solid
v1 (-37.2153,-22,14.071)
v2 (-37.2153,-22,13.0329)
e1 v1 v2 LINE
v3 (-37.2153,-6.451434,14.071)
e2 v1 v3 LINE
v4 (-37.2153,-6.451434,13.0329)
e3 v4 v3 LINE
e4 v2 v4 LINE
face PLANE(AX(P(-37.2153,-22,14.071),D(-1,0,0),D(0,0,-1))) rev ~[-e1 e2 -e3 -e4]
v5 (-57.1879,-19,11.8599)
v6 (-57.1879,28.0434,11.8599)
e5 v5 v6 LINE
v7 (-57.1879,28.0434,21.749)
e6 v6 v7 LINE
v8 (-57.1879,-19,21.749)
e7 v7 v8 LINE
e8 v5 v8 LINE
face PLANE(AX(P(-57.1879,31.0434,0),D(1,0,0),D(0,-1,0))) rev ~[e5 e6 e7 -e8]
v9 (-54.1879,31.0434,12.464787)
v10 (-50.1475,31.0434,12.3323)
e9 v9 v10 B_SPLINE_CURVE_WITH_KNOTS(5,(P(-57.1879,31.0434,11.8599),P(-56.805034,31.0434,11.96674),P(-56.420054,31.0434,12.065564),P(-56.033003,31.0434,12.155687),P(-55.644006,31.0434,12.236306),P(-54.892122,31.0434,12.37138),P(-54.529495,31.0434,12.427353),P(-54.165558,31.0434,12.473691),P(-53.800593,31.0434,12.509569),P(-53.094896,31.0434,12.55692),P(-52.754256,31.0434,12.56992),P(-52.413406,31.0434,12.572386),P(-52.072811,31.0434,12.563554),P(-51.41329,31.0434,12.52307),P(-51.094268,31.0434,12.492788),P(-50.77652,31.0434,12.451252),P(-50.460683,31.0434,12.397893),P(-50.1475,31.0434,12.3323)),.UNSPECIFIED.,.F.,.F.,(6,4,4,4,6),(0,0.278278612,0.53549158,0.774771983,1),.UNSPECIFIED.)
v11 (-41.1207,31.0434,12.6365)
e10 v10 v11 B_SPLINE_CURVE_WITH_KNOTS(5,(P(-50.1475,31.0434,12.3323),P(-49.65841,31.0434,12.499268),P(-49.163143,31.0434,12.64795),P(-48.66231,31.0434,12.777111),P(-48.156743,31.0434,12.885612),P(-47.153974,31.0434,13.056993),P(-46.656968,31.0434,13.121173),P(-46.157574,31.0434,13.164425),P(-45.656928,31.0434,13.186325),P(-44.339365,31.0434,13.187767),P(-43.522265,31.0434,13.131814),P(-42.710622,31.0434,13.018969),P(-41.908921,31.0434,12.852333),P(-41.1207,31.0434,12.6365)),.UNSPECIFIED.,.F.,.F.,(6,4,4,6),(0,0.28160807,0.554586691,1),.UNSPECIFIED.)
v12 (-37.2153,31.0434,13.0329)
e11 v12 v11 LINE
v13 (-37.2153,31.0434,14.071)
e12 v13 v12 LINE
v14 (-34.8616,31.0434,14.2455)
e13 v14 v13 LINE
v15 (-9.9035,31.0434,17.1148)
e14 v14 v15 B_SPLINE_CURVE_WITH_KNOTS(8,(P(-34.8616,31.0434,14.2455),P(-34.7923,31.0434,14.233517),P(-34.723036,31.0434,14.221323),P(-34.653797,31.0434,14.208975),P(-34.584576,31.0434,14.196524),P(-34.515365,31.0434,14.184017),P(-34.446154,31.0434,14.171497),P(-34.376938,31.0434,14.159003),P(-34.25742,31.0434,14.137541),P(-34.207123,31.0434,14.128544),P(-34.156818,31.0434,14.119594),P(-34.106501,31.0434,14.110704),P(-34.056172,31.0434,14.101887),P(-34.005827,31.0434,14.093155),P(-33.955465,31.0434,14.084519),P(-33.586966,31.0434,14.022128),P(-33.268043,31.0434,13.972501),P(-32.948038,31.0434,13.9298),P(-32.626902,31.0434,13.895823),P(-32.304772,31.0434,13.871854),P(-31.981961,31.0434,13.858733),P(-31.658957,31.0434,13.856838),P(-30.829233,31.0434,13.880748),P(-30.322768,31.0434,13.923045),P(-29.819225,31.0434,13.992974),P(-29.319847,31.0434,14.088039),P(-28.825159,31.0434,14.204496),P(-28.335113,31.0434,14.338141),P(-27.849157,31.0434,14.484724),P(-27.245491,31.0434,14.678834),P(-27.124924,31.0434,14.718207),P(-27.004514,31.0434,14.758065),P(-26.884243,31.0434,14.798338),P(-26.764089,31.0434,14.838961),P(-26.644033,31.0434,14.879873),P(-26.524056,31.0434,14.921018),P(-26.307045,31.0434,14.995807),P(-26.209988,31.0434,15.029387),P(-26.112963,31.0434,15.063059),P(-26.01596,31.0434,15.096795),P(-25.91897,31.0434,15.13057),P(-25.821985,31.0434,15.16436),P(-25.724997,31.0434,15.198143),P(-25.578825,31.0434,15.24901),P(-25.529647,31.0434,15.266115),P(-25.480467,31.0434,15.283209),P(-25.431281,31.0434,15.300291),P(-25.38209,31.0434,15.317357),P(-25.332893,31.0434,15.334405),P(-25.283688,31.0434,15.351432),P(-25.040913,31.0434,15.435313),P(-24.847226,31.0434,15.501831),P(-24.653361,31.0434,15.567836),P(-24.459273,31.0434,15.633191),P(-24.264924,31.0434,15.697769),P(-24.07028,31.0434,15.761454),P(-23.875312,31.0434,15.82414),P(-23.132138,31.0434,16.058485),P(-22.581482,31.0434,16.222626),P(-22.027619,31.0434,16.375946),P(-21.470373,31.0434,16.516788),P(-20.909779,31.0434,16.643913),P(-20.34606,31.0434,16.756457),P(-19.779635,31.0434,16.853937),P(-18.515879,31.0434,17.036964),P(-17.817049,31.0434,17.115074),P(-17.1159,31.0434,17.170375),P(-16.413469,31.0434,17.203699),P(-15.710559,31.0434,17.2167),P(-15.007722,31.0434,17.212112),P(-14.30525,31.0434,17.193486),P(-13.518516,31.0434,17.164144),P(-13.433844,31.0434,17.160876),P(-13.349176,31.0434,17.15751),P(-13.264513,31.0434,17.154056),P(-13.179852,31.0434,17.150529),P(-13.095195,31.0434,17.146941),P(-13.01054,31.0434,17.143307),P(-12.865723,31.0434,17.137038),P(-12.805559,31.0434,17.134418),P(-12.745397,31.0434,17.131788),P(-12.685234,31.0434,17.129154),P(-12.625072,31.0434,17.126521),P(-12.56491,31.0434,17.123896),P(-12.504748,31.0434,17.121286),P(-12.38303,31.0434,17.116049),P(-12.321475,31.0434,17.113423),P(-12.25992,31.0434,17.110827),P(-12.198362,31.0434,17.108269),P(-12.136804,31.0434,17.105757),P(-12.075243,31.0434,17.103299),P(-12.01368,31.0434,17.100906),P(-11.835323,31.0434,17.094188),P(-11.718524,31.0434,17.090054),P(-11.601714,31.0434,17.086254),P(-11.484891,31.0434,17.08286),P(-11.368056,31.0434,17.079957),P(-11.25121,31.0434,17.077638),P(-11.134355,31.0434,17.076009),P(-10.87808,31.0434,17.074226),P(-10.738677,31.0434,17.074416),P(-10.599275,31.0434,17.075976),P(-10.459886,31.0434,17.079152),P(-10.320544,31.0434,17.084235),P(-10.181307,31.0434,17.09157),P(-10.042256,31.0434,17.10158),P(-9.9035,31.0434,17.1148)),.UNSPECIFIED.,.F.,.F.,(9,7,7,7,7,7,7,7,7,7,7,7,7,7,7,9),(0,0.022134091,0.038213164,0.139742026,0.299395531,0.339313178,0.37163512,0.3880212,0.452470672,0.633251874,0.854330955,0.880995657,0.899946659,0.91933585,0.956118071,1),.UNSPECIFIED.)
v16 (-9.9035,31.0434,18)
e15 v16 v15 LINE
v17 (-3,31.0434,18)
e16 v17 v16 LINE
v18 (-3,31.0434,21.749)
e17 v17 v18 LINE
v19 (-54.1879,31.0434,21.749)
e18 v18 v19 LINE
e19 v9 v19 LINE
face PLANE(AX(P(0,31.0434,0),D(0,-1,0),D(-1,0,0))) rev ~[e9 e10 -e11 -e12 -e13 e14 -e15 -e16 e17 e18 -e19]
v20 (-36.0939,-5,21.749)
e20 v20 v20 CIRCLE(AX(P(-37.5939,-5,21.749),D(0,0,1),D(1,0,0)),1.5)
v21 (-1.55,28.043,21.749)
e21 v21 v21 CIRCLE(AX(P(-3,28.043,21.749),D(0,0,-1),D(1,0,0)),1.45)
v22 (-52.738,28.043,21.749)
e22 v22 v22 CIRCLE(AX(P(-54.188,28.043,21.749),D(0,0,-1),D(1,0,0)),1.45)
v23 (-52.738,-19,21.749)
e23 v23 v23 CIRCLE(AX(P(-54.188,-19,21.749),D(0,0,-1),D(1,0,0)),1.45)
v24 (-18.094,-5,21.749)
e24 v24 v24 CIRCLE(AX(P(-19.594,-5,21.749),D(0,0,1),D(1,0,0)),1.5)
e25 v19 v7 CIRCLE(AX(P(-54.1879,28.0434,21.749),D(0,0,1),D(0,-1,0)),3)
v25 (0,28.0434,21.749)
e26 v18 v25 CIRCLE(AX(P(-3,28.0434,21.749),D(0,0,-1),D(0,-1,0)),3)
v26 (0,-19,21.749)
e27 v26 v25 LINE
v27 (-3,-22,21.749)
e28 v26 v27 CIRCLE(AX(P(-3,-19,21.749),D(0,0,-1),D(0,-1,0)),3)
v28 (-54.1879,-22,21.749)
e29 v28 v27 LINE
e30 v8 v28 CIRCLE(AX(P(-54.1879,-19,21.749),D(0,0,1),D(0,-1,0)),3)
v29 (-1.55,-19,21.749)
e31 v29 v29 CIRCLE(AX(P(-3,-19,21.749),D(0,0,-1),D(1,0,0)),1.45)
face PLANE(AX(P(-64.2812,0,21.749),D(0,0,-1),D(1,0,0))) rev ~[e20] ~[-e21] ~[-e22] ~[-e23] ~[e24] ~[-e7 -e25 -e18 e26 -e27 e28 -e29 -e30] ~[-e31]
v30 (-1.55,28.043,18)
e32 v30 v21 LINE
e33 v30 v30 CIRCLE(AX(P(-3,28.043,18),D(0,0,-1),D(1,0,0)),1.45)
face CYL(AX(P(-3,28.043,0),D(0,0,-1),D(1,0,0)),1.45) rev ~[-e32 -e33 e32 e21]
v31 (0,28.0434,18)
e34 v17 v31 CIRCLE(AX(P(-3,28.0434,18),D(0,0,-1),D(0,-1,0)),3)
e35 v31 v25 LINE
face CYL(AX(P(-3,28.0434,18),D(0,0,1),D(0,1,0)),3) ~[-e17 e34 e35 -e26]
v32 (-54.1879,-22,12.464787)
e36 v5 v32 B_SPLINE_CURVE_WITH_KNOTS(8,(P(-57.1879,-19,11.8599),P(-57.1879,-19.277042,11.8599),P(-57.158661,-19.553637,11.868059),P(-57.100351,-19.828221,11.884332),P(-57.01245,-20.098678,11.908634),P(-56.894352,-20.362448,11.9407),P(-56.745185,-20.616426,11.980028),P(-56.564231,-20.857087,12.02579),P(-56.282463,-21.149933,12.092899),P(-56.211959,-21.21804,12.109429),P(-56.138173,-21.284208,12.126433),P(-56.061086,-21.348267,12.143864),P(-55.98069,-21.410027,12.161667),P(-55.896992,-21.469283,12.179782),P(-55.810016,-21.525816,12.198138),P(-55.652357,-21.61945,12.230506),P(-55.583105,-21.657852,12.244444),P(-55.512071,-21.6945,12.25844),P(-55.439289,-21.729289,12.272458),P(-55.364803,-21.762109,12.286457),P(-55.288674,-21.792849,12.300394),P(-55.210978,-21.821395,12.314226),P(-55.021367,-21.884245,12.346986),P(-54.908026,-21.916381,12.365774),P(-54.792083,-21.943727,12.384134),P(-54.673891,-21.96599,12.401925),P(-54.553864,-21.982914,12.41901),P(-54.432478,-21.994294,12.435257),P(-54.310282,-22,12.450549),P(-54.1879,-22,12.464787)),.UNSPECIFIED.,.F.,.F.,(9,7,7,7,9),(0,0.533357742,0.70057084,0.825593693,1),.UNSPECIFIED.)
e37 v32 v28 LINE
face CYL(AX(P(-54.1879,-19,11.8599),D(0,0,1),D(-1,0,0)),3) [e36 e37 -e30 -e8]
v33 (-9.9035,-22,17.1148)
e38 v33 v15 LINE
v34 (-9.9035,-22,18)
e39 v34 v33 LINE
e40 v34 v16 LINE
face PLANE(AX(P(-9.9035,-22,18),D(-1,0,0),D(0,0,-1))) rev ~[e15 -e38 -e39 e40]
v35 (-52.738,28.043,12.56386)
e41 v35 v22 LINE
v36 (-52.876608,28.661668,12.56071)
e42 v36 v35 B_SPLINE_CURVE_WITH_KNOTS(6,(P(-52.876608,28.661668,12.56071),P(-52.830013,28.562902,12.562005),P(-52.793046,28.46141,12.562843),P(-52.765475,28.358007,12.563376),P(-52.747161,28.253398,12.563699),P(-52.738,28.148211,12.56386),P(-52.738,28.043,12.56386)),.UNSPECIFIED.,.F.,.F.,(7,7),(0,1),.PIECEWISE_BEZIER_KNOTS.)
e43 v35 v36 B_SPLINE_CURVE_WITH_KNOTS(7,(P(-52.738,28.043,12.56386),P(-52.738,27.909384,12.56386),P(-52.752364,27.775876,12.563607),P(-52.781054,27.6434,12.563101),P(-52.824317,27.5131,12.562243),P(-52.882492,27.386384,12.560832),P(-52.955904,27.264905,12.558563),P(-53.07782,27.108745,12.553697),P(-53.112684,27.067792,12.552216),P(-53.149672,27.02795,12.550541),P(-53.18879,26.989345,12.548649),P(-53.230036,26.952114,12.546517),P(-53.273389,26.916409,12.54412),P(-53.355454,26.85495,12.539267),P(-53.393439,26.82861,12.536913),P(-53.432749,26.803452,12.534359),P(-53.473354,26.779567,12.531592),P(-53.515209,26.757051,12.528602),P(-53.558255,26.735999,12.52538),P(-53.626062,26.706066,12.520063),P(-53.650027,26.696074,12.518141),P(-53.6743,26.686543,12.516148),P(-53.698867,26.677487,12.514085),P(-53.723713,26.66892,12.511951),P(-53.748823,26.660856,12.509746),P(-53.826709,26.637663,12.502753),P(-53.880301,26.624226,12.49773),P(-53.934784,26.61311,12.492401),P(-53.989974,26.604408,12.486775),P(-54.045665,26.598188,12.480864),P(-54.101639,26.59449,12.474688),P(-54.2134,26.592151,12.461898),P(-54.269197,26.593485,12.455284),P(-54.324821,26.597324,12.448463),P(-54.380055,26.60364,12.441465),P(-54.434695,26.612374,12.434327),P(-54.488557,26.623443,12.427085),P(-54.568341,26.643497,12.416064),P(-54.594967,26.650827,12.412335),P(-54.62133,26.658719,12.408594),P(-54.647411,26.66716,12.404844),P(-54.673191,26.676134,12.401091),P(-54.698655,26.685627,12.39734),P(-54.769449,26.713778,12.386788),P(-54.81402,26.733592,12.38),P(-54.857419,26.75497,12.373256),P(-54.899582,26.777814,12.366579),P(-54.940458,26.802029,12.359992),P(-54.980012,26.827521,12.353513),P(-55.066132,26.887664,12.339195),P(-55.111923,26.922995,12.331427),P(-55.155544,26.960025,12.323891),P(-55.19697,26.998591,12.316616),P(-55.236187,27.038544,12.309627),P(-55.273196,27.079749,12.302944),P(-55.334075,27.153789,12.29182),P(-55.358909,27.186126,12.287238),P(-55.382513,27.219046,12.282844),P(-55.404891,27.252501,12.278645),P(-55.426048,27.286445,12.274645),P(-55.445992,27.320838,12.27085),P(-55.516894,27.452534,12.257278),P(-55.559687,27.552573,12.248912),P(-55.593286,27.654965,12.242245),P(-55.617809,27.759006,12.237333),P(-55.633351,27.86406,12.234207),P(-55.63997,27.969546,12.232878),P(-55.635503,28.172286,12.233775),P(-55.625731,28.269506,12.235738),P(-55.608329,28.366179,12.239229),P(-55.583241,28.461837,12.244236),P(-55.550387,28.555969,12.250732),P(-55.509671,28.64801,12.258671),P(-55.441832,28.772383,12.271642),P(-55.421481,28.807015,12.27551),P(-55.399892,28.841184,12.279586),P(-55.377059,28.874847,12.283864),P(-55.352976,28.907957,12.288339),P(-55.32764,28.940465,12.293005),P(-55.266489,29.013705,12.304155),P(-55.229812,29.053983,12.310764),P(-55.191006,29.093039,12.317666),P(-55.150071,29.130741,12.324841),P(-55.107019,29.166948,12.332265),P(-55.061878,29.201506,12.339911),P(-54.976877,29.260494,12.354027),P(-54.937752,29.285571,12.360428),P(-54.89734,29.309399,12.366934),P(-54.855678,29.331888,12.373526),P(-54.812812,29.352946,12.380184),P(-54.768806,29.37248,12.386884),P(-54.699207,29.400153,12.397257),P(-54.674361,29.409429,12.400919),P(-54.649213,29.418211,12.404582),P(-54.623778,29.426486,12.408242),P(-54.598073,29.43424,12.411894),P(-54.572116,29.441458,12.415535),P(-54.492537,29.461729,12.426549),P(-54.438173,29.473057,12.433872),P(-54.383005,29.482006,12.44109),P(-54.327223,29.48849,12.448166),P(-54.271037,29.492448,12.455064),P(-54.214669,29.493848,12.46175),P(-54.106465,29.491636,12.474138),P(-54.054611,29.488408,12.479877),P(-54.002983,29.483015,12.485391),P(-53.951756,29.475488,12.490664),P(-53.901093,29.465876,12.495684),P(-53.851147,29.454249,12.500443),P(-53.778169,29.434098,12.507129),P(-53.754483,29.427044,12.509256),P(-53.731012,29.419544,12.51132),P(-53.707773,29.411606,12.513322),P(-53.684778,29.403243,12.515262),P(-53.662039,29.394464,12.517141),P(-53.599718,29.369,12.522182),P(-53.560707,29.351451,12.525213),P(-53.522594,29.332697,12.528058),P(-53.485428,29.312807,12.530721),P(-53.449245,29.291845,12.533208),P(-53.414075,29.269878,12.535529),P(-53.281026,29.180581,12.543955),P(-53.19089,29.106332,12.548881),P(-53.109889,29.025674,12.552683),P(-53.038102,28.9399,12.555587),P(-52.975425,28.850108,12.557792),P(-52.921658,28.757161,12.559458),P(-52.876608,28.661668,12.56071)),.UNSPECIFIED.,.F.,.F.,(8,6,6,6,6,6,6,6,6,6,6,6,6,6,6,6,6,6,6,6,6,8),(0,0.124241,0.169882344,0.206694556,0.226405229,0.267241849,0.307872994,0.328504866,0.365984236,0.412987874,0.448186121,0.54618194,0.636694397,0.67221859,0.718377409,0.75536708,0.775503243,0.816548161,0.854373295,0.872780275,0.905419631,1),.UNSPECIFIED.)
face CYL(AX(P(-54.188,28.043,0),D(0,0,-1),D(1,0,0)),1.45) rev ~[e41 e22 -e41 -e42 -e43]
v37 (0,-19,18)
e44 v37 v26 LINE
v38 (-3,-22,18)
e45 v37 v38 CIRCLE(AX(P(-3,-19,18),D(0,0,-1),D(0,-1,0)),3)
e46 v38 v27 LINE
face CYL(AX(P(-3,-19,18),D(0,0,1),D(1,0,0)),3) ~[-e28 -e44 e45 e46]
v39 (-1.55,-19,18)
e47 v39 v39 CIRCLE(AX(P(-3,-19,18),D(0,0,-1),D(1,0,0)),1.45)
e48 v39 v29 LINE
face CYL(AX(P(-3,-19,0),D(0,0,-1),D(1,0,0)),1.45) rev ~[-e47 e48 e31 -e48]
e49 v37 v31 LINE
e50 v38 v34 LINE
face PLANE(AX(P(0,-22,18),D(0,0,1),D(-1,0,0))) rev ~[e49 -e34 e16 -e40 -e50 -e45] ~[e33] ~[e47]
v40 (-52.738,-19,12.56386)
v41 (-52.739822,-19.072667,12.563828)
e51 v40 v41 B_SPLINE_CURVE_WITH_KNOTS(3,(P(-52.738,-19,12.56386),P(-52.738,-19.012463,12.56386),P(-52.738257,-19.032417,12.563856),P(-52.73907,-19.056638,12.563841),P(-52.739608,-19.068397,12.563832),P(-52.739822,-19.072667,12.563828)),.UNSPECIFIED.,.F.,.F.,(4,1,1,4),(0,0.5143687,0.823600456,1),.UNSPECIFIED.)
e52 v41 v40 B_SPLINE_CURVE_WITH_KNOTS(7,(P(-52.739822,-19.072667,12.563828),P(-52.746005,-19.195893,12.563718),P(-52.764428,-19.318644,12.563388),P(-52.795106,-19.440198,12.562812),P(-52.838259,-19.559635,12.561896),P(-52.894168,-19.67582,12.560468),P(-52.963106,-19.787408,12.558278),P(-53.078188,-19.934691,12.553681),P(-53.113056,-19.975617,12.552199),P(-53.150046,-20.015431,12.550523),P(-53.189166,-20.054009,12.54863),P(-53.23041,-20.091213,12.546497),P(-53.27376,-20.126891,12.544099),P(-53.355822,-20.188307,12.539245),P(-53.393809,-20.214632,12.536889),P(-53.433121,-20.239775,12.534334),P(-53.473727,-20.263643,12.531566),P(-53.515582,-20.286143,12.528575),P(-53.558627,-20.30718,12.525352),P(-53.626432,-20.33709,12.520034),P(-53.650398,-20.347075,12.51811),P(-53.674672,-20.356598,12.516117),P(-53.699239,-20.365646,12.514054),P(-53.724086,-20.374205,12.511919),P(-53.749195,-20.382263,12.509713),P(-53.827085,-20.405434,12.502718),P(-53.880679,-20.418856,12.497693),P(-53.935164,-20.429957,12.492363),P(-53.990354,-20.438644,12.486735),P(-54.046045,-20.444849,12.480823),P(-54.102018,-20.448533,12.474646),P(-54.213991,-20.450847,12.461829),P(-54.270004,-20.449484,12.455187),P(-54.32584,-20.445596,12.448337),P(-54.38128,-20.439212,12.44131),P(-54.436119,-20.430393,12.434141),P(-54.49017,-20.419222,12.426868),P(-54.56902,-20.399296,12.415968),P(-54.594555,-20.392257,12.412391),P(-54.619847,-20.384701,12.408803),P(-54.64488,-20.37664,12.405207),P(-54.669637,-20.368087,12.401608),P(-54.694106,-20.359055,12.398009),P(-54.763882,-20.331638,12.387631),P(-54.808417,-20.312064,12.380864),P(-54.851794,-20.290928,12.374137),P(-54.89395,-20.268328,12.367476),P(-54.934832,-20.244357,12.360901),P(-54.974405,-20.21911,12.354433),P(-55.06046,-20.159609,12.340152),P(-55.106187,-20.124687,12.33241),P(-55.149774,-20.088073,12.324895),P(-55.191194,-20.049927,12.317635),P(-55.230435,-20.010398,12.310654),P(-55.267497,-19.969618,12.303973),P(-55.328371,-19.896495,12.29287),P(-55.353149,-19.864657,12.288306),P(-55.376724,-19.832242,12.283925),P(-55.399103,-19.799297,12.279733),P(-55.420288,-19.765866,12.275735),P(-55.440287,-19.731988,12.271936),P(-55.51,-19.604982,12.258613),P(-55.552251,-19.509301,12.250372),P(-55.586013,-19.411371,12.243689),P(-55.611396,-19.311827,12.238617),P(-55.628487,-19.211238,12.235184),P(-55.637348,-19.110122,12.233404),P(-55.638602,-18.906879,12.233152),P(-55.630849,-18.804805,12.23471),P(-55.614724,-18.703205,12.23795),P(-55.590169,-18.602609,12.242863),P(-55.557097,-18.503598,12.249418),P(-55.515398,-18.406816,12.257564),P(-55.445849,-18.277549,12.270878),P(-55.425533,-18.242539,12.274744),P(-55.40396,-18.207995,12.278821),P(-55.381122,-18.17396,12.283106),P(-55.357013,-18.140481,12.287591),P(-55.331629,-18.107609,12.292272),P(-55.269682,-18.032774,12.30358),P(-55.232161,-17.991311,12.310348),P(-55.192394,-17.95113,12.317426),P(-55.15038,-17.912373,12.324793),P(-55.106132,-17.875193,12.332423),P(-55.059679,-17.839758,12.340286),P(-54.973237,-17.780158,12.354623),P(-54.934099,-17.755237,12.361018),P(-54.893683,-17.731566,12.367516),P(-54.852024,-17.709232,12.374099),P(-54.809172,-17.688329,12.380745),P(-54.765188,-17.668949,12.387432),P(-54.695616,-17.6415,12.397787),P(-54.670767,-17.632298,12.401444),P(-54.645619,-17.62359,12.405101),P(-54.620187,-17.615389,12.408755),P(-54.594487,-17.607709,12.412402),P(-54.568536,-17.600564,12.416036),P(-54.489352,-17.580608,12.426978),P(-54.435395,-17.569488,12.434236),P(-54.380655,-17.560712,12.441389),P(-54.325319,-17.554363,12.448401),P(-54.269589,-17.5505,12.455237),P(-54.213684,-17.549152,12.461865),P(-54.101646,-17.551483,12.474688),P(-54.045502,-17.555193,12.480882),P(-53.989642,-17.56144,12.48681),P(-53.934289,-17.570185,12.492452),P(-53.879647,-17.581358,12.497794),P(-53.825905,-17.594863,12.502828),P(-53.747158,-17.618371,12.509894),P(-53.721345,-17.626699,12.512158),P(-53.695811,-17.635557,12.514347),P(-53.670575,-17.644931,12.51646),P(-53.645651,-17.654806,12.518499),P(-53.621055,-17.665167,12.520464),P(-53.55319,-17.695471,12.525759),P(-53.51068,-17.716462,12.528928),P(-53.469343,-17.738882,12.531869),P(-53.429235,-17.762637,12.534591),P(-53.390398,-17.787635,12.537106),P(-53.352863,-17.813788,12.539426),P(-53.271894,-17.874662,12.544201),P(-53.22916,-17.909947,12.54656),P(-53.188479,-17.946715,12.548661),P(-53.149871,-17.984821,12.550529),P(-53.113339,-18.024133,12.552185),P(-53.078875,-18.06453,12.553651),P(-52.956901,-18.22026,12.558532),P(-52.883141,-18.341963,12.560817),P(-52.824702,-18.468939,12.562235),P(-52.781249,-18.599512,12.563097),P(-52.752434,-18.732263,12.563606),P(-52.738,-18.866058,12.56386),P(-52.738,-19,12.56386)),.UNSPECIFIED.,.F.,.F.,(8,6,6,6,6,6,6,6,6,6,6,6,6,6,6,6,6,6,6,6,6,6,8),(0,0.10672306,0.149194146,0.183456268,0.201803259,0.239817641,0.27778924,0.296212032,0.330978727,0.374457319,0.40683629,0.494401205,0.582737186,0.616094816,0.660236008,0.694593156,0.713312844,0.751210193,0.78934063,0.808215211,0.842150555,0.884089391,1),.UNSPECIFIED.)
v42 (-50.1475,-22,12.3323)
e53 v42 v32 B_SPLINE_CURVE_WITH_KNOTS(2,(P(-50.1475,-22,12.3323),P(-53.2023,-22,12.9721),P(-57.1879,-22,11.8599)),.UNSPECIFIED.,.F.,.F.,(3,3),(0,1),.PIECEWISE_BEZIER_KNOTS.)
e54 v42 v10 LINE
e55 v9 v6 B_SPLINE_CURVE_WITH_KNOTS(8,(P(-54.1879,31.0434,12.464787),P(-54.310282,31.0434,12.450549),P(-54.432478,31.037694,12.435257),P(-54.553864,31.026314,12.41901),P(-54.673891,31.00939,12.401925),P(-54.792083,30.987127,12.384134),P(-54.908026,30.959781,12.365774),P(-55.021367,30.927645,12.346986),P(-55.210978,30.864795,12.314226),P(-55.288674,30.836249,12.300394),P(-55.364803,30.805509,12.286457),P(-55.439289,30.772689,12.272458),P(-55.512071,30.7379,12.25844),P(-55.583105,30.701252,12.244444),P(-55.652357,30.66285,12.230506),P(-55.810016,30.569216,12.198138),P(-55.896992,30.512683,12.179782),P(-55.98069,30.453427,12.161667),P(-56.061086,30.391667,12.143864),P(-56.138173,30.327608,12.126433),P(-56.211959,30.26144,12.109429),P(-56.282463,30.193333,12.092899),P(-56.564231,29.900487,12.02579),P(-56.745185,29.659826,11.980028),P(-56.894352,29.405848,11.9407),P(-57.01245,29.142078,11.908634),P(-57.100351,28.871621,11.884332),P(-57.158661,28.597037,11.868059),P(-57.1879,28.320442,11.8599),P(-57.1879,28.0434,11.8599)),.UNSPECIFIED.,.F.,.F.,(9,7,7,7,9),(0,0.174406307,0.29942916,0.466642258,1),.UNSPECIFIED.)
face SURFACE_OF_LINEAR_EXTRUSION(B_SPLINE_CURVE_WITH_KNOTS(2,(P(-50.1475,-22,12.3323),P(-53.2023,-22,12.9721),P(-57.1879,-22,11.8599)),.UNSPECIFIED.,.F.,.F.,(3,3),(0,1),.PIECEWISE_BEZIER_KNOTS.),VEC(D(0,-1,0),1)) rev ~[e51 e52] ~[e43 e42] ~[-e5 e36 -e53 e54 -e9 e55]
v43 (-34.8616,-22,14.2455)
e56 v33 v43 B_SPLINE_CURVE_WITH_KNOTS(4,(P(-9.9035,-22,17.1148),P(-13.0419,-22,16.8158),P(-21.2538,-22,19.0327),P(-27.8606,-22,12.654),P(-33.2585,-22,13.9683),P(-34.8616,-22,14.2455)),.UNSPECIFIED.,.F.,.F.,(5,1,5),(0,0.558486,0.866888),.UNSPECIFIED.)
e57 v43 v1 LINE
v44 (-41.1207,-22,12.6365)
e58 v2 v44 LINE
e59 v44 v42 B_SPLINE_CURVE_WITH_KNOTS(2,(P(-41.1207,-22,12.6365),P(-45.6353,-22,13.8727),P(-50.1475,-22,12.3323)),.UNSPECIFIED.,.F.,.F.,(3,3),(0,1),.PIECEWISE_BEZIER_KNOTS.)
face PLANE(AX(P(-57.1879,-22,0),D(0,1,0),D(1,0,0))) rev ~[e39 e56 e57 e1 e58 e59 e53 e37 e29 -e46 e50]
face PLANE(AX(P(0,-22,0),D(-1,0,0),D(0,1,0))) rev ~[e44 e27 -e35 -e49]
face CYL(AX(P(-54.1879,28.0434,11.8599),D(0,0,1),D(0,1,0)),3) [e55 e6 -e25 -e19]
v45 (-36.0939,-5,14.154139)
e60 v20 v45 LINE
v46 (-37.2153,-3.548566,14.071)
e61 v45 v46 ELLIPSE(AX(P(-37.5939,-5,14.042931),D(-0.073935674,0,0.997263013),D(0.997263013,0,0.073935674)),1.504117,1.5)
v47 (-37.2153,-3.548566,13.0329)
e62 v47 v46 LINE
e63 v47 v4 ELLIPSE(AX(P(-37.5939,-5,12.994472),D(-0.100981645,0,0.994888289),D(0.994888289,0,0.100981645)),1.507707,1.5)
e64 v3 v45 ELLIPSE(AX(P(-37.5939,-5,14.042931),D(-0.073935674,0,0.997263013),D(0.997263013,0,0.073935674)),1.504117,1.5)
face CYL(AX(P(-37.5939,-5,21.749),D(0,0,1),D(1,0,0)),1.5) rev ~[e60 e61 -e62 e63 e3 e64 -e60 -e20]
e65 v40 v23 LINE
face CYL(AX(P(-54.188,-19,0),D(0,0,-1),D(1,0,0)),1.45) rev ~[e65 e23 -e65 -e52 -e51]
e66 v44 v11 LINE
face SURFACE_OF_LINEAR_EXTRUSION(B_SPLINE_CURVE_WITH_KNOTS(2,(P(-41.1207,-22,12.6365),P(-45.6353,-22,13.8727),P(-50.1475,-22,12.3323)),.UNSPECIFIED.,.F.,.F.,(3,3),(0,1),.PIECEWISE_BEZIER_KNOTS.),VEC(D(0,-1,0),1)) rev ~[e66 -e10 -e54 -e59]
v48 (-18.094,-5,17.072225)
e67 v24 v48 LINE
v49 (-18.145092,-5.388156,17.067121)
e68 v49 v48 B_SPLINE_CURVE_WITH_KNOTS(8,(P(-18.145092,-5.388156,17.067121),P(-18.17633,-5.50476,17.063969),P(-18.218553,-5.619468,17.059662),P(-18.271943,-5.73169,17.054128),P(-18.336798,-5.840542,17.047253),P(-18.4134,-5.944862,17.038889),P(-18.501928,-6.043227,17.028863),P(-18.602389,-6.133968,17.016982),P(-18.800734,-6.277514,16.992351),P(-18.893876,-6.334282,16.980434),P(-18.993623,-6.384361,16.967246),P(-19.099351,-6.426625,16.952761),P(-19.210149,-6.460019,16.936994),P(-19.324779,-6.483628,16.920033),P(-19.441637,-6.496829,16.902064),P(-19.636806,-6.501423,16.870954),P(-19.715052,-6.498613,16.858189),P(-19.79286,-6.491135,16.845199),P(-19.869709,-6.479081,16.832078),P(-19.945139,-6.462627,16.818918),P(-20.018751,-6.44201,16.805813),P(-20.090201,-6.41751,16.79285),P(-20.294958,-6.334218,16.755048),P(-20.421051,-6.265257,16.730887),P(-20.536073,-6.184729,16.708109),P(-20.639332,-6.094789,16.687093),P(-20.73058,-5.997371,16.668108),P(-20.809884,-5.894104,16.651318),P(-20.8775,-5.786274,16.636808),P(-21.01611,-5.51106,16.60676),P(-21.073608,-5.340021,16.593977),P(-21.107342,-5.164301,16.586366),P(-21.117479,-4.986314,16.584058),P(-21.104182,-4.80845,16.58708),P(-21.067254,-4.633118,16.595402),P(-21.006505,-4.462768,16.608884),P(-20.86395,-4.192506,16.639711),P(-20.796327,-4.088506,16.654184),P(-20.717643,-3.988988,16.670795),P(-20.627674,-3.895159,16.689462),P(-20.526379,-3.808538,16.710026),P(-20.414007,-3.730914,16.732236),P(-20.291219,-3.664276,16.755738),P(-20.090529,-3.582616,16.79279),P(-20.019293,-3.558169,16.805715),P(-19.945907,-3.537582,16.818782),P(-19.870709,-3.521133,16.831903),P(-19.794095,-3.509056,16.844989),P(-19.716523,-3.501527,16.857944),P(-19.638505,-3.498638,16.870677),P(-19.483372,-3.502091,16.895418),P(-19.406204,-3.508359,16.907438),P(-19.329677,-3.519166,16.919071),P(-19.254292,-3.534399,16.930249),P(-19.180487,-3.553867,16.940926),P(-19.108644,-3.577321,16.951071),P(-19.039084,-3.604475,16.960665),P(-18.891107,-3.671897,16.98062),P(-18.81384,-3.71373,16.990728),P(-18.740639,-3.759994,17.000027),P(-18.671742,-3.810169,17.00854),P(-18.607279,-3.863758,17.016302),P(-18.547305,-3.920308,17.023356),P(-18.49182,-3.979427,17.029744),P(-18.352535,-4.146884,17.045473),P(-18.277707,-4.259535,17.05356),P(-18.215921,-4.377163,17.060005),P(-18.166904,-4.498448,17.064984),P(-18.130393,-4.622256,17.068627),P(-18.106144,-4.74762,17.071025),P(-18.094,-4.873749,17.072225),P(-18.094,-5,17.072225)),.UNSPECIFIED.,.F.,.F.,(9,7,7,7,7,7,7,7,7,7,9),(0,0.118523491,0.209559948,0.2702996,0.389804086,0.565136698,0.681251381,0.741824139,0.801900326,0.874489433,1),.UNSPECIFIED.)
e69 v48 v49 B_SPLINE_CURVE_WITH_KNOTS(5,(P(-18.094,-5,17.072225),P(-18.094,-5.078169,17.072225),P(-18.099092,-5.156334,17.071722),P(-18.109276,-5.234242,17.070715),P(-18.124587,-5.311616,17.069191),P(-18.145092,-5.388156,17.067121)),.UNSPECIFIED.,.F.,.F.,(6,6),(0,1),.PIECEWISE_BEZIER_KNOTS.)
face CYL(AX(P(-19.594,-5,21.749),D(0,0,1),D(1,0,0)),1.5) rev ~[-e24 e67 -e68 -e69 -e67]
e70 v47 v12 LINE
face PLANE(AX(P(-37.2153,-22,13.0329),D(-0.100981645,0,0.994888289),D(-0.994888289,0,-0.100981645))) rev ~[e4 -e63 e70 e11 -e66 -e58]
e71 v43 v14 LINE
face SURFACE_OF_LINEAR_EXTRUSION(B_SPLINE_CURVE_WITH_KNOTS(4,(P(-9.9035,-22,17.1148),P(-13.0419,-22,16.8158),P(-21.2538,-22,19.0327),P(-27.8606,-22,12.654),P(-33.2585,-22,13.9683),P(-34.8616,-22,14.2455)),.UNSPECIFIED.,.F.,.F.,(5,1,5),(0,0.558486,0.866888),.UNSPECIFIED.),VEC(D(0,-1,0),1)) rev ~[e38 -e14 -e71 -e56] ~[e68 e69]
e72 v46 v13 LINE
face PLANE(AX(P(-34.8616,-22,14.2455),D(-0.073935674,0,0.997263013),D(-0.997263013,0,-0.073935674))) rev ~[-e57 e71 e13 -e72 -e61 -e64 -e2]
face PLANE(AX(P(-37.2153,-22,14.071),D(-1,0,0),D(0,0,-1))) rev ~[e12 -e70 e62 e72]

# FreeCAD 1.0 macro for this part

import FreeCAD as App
import Part
import Sketcher

V = App.Vector
Q = App.Units.Quantity


def edges_at(feature, points):
    """Names of the edges that pass closest to the given points."""
    edges = feature.Shape.Edges
    near = lambda p: min(range(len(edges)), key=lambda i: edges[i].distToShape(Part.Vertex(*p))[0])
    return sorted({f"Edge{near(p) + 1}" for p in points})


def add_polygon(sketch, points):
    """Adds a closed chain of lines whose ends are joined by coincident constraints."""
    first, n = sketch.GeometryCount, len(points)
    for a, b in zip(points, points[1:] + points[:1]):
        sketch.addGeometry(Part.LineSegment(App.Vector(*a, 0), App.Vector(*b, 0)), False)
    for i in range(n):
        sketch.addConstraint(Sketcher.Constraint("Coincident", first + i, 2, first + (i + 1) % n, 1))

doc = App.newDocument("Part")
body = doc.addObject("PartDesign::Body", "Body")

sketch1 = body.newObject("Sketcher::SketchObject", "Sketch")
sketch1.AttachmentSupport = (doc.getObject("XY_Plane"), [""])
sketch1.MapMode = "FlatFace"
add_polygon(sketch1, [(-57.2, 31), (0, 31), (0, -22), (-57.2, -22)])
sketch1.addGeometry(Part.Circle(V(-54.2, 28, 0), V(0, 0, 1), 1.4), False)
sketch1.addGeometry(Part.Circle(V(-3, 28, 0), V(0, 0, 1), 1.4), False)
sketch1.addGeometry(Part.Circle(V(-54.2, -19, 0), V(0, 0, 1), 1.4), False)
sketch1.addGeometry(Part.Circle(V(-3, -19, 0), V(0, 0, 1), 1.4), False)
sketch1.addConstraint(Sketcher.Constraint("Horizontal", 0))
sketch1.addConstraint(Sketcher.Constraint("Vertical", 1))
sketch1.addConstraint(Sketcher.Constraint("Horizontal", 2))
sketch1.addConstraint(Sketcher.Constraint("Vertical", 3))
sketch1.addConstraint(Sketcher.Constraint("Equal", 4, 5))
sketch1.addConstraint(Sketcher.Constraint("Equal", 5, 6))
sketch1.addConstraint(Sketcher.Constraint("Equal", 6, 7))
sketch1.addConstraint(Sketcher.Constraint("PointOnObject", 0, 2, -2))
sketch1.addConstraint(Sketcher.Constraint("Horizontal", 4, 3, 5, 3))
sketch1.addConstraint(Sketcher.Constraint("Horizontal", 6, 3, 7, 3))
sketch1.addConstraint(Sketcher.Constraint("Vertical", 4, 3, 6, 3))
sketch1.addConstraint(Sketcher.Constraint("Vertical", 5, 3, 7, 3))
sketch1.addConstraint(Sketcher.Constraint("Diameter", 4, 2.9))
sketch1.addConstraint(Sketcher.Constraint("DistanceX", 5, 3, -1, 1, 3.0))
sketch1.addConstraint(Sketcher.Constraint("DistanceY", 1, 2, -1, 1, 22.0))
sketch1.addConstraint(Sketcher.Constraint("DistanceY", 1, 2, 7, 3, 3.0))
sketch1.addConstraint(Sketcher.Constraint("DistanceX", 2, 2, 6, 3, 3.0))
sketch1.addConstraint(Sketcher.Constraint("DistanceX", 4, 3, 5, 3, 51.188))
sketch1.addConstraint(Sketcher.Constraint("DistanceY", 6, 3, 4, 3, 47.043))
sketch1.addConstraint(Sketcher.Constraint("DistanceY", 5, 3, 0, 2, 3.0004))
pad1 = body.newObject("PartDesign::Pad", "Pad")
pad1.Profile = sketch1
pad1.Length = 21.749

sketch2 = body.newObject("Sketcher::SketchObject", "Sketch001")
sketch2.AttachmentSupport = (doc.getObject("XZ_Plane"), [""])
sketch2.MapMode = "FlatFace"
sketch2.AttachmentOffset = App.Placement(V(0, 0, 22), App.Rotation())
sketch2.addGeometry(Part.LineSegment(V(0, 0, 0), V(0, 18, 0)), False)
sketch2.addGeometry(Part.LineSegment(V(0, 18, 0), V(-9.9035, 18, 0)), False)
sketch2.addGeometry(Part.LineSegment(V(-9.9035, 18, 0), V(-9.9035, 17.1148, 0)), False)
sketch2.addGeometry(Part.BSplineCurve([V(-9.9035, 17.1148, 0), V(-13.0419, 16.8158, 0), V(-21.2538, 19.0327, 0), V(-27.8606, 12.654, 0), V(-33.2585, 13.9683, 0), V(-34.8616, 14.2455, 0)], [5, 1, 5], [0, 0.558486, 0.866888], False, 4, [1, 1, 1, 1, 1, 1], False), False)
sketch2.addGeometry(Part.LineSegment(V(-34.8616, 14.2455, 0), V(-37.2153, 14.071, 0)), False)
sketch2.addGeometry(Part.LineSegment(V(-37.2153, 14.071, 0), V(-37.2153, 13.0329, 0)), False)
sketch2.addGeometry(Part.LineSegment(V(-37.2153, 13.0329, 0), V(-41.1207, 12.6365, 0)), False)
sketch2.addGeometry(Part.BSplineCurve([V(-41.1207, 12.6365, 0), V(-45.6353, 13.8727, 0), V(-50.1475, 12.3323, 0)], [3, 3], [0, 1], False, 2, [1, 1, 1], False), False)
sketch2.addGeometry(Part.BSplineCurve([V(-50.1475, 12.3323, 0), V(-53.2023, 12.9721, 0), V(-57.1879, 11.8599, 0)], [3, 3], [0, 1], False, 2, [1, 1, 1], False), False)
sketch2.addGeometry(Part.LineSegment(V(-57.1879, 11.8599, 0), V(-57.1879, 0, 0)), False)
sketch2.addGeometry(Part.LineSegment(V(-57.1879, 0, 0), V(0, 0, 0)), False)
sketch2.addConstraint(Sketcher.Constraint("Block", 3))
sketch2.addConstraint(Sketcher.Constraint("Block", 7))
sketch2.addConstraint(Sketcher.Constraint("Block", 8))
sketch2.addConstraint(Sketcher.Constraint("Coincident", 0, 2, 1, 1))
sketch2.addConstraint(Sketcher.Constraint("Coincident", 1, 2, 2, 1))
sketch2.addConstraint(Sketcher.Constraint("Coincident", 2, 2, 3, 1))
sketch2.addConstraint(Sketcher.Constraint("Coincident", 3, 2, 4, 1))
sketch2.addConstraint(Sketcher.Constraint("Coincident", 4, 2, 5, 1))
sketch2.addConstraint(Sketcher.Constraint("Coincident", 5, 2, 6, 1))
sketch2.addConstraint(Sketcher.Constraint("Coincident", 6, 2, 7, 1))
sketch2.addConstraint(Sketcher.Constraint("Coincident", 8, 2, 9, 1))
sketch2.addConstraint(Sketcher.Constraint("Coincident", 9, 2, 10, 1))
sketch2.addConstraint(Sketcher.Constraint("Coincident", 10, 2, 0, 1))
sketch2.addConstraint(Sketcher.Constraint("Vertical", 0))
sketch2.addConstraint(Sketcher.Constraint("Horizontal", 1))
sketch2.addConstraint(Sketcher.Constraint("Vertical", 2))
sketch2.addConstraint(Sketcher.Constraint("Vertical", 5))
sketch2.addConstraint(Sketcher.Constraint("Vertical", 9))
sketch2.addConstraint(Sketcher.Constraint("Horizontal", 10))
sketch2.addConstraint(Sketcher.Constraint("Coincident", 10, 2, -1, 1))
sketch2.addConstraint(Sketcher.Constraint("DistanceY", 0, 1, 0, 2, 18.0))
sketch2.addConstraint(Sketcher.Constraint("Angle", 4, Q("-175.76 deg")))
sketch2.addConstraint(Sketcher.Constraint("DistanceY", 5, 2, 5, 1, 1.038))
sketch2.addConstraint(Sketcher.Constraint("DistanceY", -1, 1, 4, 2, 14.071))
pocket1 = body.newObject("PartDesign::Pocket", "Pocket")
pocket1.Profile = sketch2
pocket1.Type = "ThroughAll"
doc.recompute()

fillet = body.newObject("PartDesign::Fillet", "Fillet")
fillet.Base = (pocket1, edges_at(pocket1, [
    (-57.188, -22, 16.804),
    (0, -22, 19.875),
    (-57.188, 31.043, 16.804),
    (0, 31.043, 19.875),
]))
fillet.Radius = 3

sketch3 = body.newObject("Sketcher::SketchObject", "Sketch002")
sketch3.AttachmentSupport = (doc.getObject("XY_Plane"), [""])
sketch3.MapMode = "FlatFace"
sketch3.AttachmentOffset = App.Placement(V(0, 0, 21.749), App.Rotation())
sketch3.addGeometry(Part.Circle(V(-37.6, -5, 0), V(0, 0, 1), 1.5), False)
sketch3.addGeometry(Part.Circle(V(-19.6, -5, 0), V(0, 0, 1), 1.5), False)
sketch3.addConstraint(Sketcher.Constraint("Equal", 0, 1))
sketch3.addConstraint(Sketcher.Constraint("Horizontal", 0, 3, 1, 3))
sketch3.addConstraint(Sketcher.Constraint("Diameter", 0, 3.0))
sketch3.addConstraint(Sketcher.Constraint("DistanceY", 0, 3, -1, 1, 5.0))
sketch3.addConstraint(Sketcher.Constraint("DistanceX", 0, 3, 1, 3, 18.0))
sketch3.addConstraint(Sketcher.Constraint("DistanceX", 0, 3, -1, 1, 37.594))
pocket2 = body.newObject("PartDesign::Pocket", "Pocket001")
pocket2.Profile = sketch3
pocket2.Length = 67.251

doc.recompute()
